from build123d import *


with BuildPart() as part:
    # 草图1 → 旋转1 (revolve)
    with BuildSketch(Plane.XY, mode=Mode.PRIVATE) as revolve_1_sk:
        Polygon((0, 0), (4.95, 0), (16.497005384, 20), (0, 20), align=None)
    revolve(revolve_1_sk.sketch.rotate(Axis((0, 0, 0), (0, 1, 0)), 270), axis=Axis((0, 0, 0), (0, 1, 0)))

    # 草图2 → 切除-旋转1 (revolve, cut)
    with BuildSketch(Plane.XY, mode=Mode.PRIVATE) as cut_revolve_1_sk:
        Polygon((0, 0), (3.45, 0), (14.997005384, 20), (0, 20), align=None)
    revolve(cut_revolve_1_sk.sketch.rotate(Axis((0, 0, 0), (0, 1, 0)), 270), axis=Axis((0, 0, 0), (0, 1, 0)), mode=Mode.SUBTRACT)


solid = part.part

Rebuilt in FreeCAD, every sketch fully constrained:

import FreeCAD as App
import Part
import Sketcher
from FreeCAD import Vector
Q = App.Units.Quantity

doc = App.newDocument("Part")
body = doc.addObject("PartDesign::Body", "Body")

# Sketch on XY plane
sketch1 = body.newObject("Sketcher::SketchObject", "Sketch")
sketch1.AttachmentSupport = (doc.getObject("XY_Plane"), [""])
sketch1.MapMode = "FlatFace"
sketch1.addGeometry([
    Part.LineSegment(Vector(0, 0, 0), Vector(4.95, 0, 0)),
    Part.LineSegment(Vector(4.95, 0, 0), Vector(16.497005, 20, 0)),
    Part.LineSegment(Vector(16.497005, 20, 0), Vector(0, 20, 0)),
    Part.LineSegment(Vector(0, 20, 0), Vector(0, 0, 0)),
], False)
sketch1.addConstraint([
    Sketcher.Constraint("Coincident", 0, 2, 1, 1),
    Sketcher.Constraint("Coincident", 1, 2, 2, 1),
    Sketcher.Constraint("Coincident", 2, 2, 3, 1),
    Sketcher.Constraint("Coincident", 3, 2, 0, 1),
    Sketcher.Constraint("Horizontal", 0),
    Sketcher.Constraint("Horizontal", 2),
    Sketcher.Constraint("Vertical", 3),
    Sketcher.Constraint("Coincident", 3, 2, -1, 1),
    Sketcher.Constraint("DistanceY", 3, 2, 3, 1, Q("20 mm")),
    Sketcher.Constraint("Angle", 1, Q("60 deg")),
    Sketcher.Constraint("DistanceX", 0, 1, 0, 2, Q("4.95 mm")),
])
revolution = body.newObject("PartDesign::Revolution", "Revolution")
revolution.Profile = sketch1
revolution.ReferenceAxis = (sketch1, ["V_Axis"])
revolution.Angle = 360

# Sketch on XY plane
sketch2 = body.newObject("Sketcher::SketchObject", "Sketch001")
sketch2.AttachmentSupport = (doc.getObject("XY_Plane"), [""])
sketch2.MapMode = "FlatFace"
sketch2.addGeometry([
    Part.LineSegment(Vector(0, 0, 0), Vector(3.45, 0, 0)),
    Part.LineSegment(Vector(3.45, 0, 0), Vector(14.997005, 20, 0)),
    Part.LineSegment(Vector(14.997005, 20, 0), Vector(0, 20, 0)),
    Part.LineSegment(Vector(0, 20, 0), Vector(0, 0, 0)),
], False)
sketch2.addConstraint([
    Sketcher.Constraint("Coincident", 0, 2, 1, 1),
    Sketcher.Constraint("Coincident", 1, 2, 2, 1),
    Sketcher.Constraint("Coincident", 2, 2, 3, 1),
    Sketcher.Constraint("Coincident", 3, 2, 0, 1),
    Sketcher.Constraint("Horizontal", 0),
    Sketcher.Constraint("Horizontal", 2),
    Sketcher.Constraint("Vertical", 3),
    Sketcher.Constraint("Coincident", 3, 2, -1, 1),
    Sketcher.Constraint("DistanceY", 3, 2, 3, 1, Q("20 mm")),
    Sketcher.Constraint("Angle", 1, Q("60 deg")),
    Sketcher.Constraint("DistanceX", 0, 1, 0, 2, Q("3.45 mm")),
])
groove = body.newObject("PartDesign::Groove", "Groove")
groove.Profile = sketch2
groove.ReferenceAxis = (sketch2, ["V_Axis"])
groove.Angle = 360

doc.recompute()
